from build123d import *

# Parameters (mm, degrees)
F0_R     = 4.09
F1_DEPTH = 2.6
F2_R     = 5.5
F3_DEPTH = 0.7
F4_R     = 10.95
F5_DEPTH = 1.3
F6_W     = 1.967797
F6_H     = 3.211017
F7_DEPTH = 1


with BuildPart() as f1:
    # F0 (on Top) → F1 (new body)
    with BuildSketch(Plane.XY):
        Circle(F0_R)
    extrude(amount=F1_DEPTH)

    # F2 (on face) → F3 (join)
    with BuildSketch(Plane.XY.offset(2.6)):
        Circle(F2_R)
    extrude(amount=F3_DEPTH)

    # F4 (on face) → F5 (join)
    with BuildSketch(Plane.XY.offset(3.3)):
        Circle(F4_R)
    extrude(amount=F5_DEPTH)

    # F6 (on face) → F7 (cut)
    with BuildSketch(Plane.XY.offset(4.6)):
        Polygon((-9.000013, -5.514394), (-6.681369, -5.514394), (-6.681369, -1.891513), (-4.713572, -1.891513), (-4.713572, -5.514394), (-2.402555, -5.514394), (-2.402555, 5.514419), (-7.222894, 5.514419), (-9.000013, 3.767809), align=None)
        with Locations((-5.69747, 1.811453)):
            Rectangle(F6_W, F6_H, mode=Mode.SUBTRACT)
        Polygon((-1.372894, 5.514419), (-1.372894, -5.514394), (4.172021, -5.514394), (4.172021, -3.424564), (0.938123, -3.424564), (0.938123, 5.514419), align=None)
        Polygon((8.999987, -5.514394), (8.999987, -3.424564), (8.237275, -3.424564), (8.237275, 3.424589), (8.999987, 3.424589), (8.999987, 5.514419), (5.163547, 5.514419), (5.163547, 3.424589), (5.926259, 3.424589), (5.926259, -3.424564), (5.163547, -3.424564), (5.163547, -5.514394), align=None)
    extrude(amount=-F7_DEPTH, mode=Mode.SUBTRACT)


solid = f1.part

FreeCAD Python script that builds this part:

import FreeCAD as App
import Part
import Sketcher
from FreeCAD import Vector


def add_polygon(sketch, points):
    """Adds a closed chain of lines whose ends are joined by coincident constraints."""
    first, n = sketch.GeometryCount, len(points)
    for a, b in zip(points, points[1:] + points[:1]):
        sketch.addGeometry(Part.LineSegment(App.Vector(*a, 0), App.Vector(*b, 0)), False)
    for i in range(n):
        sketch.addConstraint(Sketcher.Constraint("Coincident", first + i, 2, first + (i + 1) % n, 1))

doc = App.newDocument("Part")
body = doc.addObject("PartDesign::Body", "Body")

# Sketch on XY plane
sketch1 = body.newObject("Sketcher::SketchObject", "Sketch")
sketch1.AttachmentSupport = (doc.getObject("XY_Plane"), [""])
sketch1.MapMode = "FlatFace"
sketch1.addGeometry(Part.Circle(Vector(0, 0, 0), Vector(0, 0, 1), 4.1), False)
sketch1.addConstraint([
    Sketcher.Constraint("Coincident", 0, 3, -1, 1),
    Sketcher.Constraint("Diameter", 0, 8.18),
])
pad1 = body.newObject("PartDesign::Pad", "Pad")
pad1.Profile = sketch1
pad1.Length = 2.6

# Sketch on XY plane
sketch2 = body.newObject("Sketcher::SketchObject", "Sketch001")
sketch2.AttachmentSupport = (doc.getObject("XY_Plane"), [""])
sketch2.MapMode = "FlatFace"
sketch2.AttachmentOffset = App.Placement(Vector(0, 0, 2.6), App.Rotation())
sketch2.addGeometry(Part.Circle(Vector(0, 0, 0), Vector(0, 0, 1), 6), False)
sketch2.addConstraint([
    Sketcher.Constraint("Coincident", 0, 3, -1, 1),
    Sketcher.Constraint("Diameter", 0, 11.0),
])
pad2 = body.newObject("PartDesign::Pad", "Pad001")
pad2.Profile = sketch2
pad2.Length = 0.7

# Sketch on XY plane
sketch3 = body.newObject("Sketcher::SketchObject", "Sketch002")
sketch3.AttachmentSupport = (doc.getObject("XY_Plane"), [""])
sketch3.MapMode = "FlatFace"
sketch3.AttachmentOffset = App.Placement(Vector(0, 0, 3.3), App.Rotation())
sketch3.addGeometry(Part.Circle(Vector(0, 0, 0), Vector(0, 0, 1), 11), False)
sketch3.addConstraint([
    Sketcher.Constraint("Coincident", 0, 3, -1, 1),
    Sketcher.Constraint("Diameter", 0, 21.9),
])
pad3 = body.newObject("PartDesign::Pad", "Pad002")
pad3.Profile = sketch3
pad3.Length = 1.3

# Sketch on XY plane
sketch4 = body.newObject("Sketcher::SketchObject", "Sketch003")
sketch4.AttachmentSupport = (doc.getObject("XY_Plane"), [""])
sketch4.MapMode = "FlatFace"
sketch4.AttachmentOffset = App.Placement(Vector(0, 0, 4.6), App.Rotation())
add_polygon(sketch4, [(-9, -5.5), (-6.7, -5.5), (-6.7, -1.9), (-4.7, -1.9), (-4.7, -5.5), (-2.4, -5.5), (-2.4, 5.5), (-7.2, 5.5), (-9, 3.8)])  # lines 0-8
add_polygon(sketch4, [(-4.7, 0.2), (-6.7, 0.2), (-6.7, 3.4), (-4.7, 3.4)])  # lines 9-12
add_polygon(sketch4, [(-1.4, 5.5), (-1.4, -5.5), (4.2, -5.5), (4.2, -3.4), (0.9, -3.4), (0.9, 5.5)])  # lines 13-18
add_polygon(sketch4, [(9, -5.5), (9, -3.4), (8.2, -3.4), (8.2, 3.4), (9, 3.4), (9, 5.5), (5.2, 5.5), (5.2, 3.4), (5.9, 3.4), (5.9, -3.4), (5.2, -3.4), (5.2, -5.5)])  # lines 19-30
sketch4.addConstraint([
    Sketcher.Constraint("Horizontal", 0),
    Sketcher.Constraint("Vertical", 1),
    Sketcher.Constraint("Horizontal", 2),
    Sketcher.Constraint("Vertical", 3),
    Sketcher.Constraint("Horizontal", 4),
    Sketcher.Constraint("Vertical", 5),
    Sketcher.Constraint("Horizontal", 6),
    Sketcher.Constraint("Vertical", 8),
    Sketcher.Constraint("Horizontal", 9),
    Sketcher.Constraint("Vertical", 10),
    Sketcher.Constraint("Horizontal", 11),
    Sketcher.Constraint("Vertical", 12),
    Sketcher.Constraint("Vertical", 13),
    Sketcher.Constraint("Horizontal", 14),
    Sketcher.Constraint("Vertical", 15),
    Sketcher.Constraint("Horizontal", 16),
    Sketcher.Constraint("Vertical", 17),
    Sketcher.Constraint("Horizontal", 18),
    Sketcher.Constraint("Vertical", 19),
    Sketcher.Constraint("Horizontal", 20),
    Sketcher.Constraint("Vertical", 21),
    Sketcher.Constraint("Horizontal", 22),
    Sketcher.Constraint("Vertical", 23),
    Sketcher.Constraint("Horizontal", 24),
    Sketcher.Constraint("Vertical", 25),
    Sketcher.Constraint("Horizontal", 26),
    Sketcher.Constraint("Vertical", 27),
    Sketcher.Constraint("Horizontal", 28),
    Sketcher.Constraint("Vertical", 29),
    Sketcher.Constraint("Horizontal", 30),
    Sketcher.Constraint("Horizontal", 0, 2, 3, 2),
    Sketcher.Constraint("Horizontal", 8, 2, 13, 2),
    Sketcher.Constraint("Horizontal", 6, 2, 17, 2),
    Sketcher.Constraint("Horizontal", 16, 2, 19, 2),
    Sketcher.Constraint("Horizontal", 18, 2, 23, 2),
    Sketcher.Constraint("Horizontal", 22, 2, 25, 2),
    Sketcher.Constraint("Horizontal", 20, 2, 27, 2),
    Sketcher.Constraint("Horizontal", 14, 2, 29, 2),
    Sketcher.Constraint("Vertical", 1, 2, 9, 2),
    Sketcher.Constraint("Vertical", 3, 2, 11, 2),
    Sketcher.Constraint("Vertical", 19, 2, 22, 2),
    Sketcher.Constraint("Vertical", 25, 2, 28, 2),
    Sketcher.Constraint("Equal", 4, 18),
    Sketcher.Constraint("Equal", 22, 26),
    Sketcher.Constraint("Equal", 19, 23),
    Sketcher.Constraint("DistanceX", 6, 2, 18, 2, 5.85),
    Sketcher.Constraint("DistanceX", 6, 2, 6, 1, 4.820339),
    Sketcher.Constraint("DistanceX", 24, 2, 24, 1, 3.83644),
    Sketcher.Constraint("DistanceX", 26, 1, 26, 2, 0.762712),
    Sketcher.Constraint("DistanceY", 1, 1, 1, 2, 3.622881),
    Sketcher.Constraint("DistanceY", 15, 1, 15, 2, 2.08983),
    Sketcher.Constraint("DistanceX", 0, 1, 0, 2, 2.318644),
    Sketcher.Constraint("DistanceX", 2, 1, 2, 2, 1.967797),
    Sketcher.Constraint("DistanceX", 4, 1, 4, 2, 2.311017),
    Sketcher.Constraint("DistanceX", 14, 1, 14, 2, 5.544915),
    Sketcher.Constraint("DistanceY", 5, 1, 5, 2, 11.028813),
    Sketcher.Constraint("DistanceY", 8, 2, 8, 1, 9.282203),
    Sketcher.Constraint("DistanceY", 10, 1, 10, 2, 3.211017),
    Sketcher.Constraint("DistanceX", 0, 2, -1, 1, 6.681369),
    Sketcher.Constraint("DistanceY", -1, 1, 5, 2, 5.514419),
    Sketcher.Constraint("DistanceY", -1, 1, 10, 2, 3.416962),
    Sketcher.Constraint("DistanceX", -1, 1, 26, 2, 5.926259),
])
pocket1 = body.newObject("PartDesign::Pocket", "Pocket")
pocket1.Profile = sketch4
pocket1.Length = 1

doc.recompute()
